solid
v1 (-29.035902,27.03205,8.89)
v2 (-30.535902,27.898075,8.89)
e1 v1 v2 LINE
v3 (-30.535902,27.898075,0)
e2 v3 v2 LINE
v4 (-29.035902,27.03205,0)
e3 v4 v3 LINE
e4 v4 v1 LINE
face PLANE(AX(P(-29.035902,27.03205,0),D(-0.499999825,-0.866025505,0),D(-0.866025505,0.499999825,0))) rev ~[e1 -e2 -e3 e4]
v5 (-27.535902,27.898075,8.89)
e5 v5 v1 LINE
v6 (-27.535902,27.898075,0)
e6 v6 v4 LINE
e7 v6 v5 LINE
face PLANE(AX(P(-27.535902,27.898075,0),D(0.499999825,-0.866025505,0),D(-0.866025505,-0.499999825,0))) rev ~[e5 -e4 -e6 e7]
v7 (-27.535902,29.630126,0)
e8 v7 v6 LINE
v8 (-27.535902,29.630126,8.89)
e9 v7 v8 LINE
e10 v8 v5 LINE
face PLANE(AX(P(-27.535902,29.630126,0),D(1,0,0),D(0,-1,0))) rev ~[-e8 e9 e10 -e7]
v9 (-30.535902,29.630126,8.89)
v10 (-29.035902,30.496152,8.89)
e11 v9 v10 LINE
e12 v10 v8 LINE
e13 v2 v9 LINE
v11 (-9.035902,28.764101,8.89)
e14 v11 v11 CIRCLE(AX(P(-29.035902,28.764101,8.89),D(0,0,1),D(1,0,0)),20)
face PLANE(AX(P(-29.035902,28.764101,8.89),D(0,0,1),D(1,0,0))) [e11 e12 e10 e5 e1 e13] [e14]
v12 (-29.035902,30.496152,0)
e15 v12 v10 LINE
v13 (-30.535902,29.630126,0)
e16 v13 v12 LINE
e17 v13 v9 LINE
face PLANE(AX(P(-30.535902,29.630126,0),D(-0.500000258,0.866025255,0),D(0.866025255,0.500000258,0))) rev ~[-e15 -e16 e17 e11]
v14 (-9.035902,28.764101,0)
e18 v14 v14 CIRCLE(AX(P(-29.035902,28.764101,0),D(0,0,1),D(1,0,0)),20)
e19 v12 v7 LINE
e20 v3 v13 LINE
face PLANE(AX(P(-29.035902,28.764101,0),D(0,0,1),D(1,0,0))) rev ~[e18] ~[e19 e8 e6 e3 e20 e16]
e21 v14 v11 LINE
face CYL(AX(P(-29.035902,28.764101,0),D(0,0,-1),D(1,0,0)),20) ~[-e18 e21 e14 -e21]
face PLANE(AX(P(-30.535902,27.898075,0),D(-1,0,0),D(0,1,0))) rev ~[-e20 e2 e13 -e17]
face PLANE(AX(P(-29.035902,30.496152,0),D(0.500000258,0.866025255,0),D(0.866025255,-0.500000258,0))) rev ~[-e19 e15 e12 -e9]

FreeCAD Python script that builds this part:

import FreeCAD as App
import Part
import Sketcher

V = App.Vector
Q = App.Units.Quantity


def add_polygon(sketch, points):
    """Adds a closed chain of lines whose ends are joined by coincident constraints."""
    first, n = sketch.GeometryCount, len(points)
    for a, b in zip(points, points[1:] + points[:1]):
        sketch.addGeometry(Part.LineSegment(App.Vector(*a, 0), App.Vector(*b, 0)), False)
    for i in range(n):
        sketch.addConstraint(Sketcher.Constraint("Coincident", first + i, 2, first + (i + 1) % n, 1))

doc = App.newDocument("Part")
body = doc.addObject("PartDesign::Body", "Body")

# Sketch on XY plane
sketch1 = body.newObject("Sketcher::SketchObject", "Sketch")
sketch1.AttachmentSupport = (doc.getObject("XY_Plane"), [""])
sketch1.MapMode = "FlatFace"
sketch1.addGeometry(Part.Circle(V(-29, 28.8, 0), V(0, 0, 1), 20), False)  # 0
add_polygon(sketch1, [(-30.5, 29.6), (-29, 30.5), (-27.5, 29.6), (-27.5, 27.9), (-29, 27), (-30.5, 27.9)])  # lines 1-6
sketch1.addConstraint([
    Sketcher.Constraint("Vertical", 3),
    Sketcher.Constraint("Vertical", 6),
    Sketcher.Constraint("Parallel", 1, 4),
    Sketcher.Constraint("Parallel", 2, 5),
    Sketcher.Constraint("Horizontal", 3, 2, 5, 2),
    Sketcher.Constraint("Horizontal", 2, 2, 6, 2),
    Sketcher.Constraint("Vertical", 0, 3, 1, 2),
    Sketcher.Constraint("Vertical", 1, 2, 4, 2),
    Sketcher.Constraint("Diameter", 0, 40.0),
    Sketcher.Constraint("Angle", 1, Q("30.000017 deg")),
    Sketcher.Constraint("DistanceX", 5, 2, 3, 2, 3.0),
    Sketcher.Constraint("DistanceY", 3, 2, 3, 1, 1.732051),
    Sketcher.Constraint("DistanceX", 0, 3, -1, 1, 29.035902),
    Sketcher.Constraint("DistanceY", -1, 1, 0, 3, 28.764101),
    Sketcher.Constraint("DistanceY", -1, 1, 1, 2, 30.496152),
])
pad1 = body.newObject("PartDesign::Pad", "Pad")
pad1.Profile = sketch1
pad1.Length = 8.89

# Sketch on XY plane
sketch2 = body.newObject("Sketcher::SketchObject", "Sketch001")
sketch2.AttachmentSupport = (doc.getObject("XY_Plane"), [""])
sketch2.MapMode = "FlatFace"
add_polygon(sketch2, [(-27.5, 27.9), (-27.5, 29.6), (-29, 30.5), (-30.5, 29.6), (-30.5, 27.9), (-29, 27)])  # lines 0-5
sketch2.addConstraint([
    Sketcher.Constraint("Vertical", 0),
    Sketcher.Constraint("Vertical", 3),
    Sketcher.Constraint("Parallel", 1, 4),
    Sketcher.Constraint("Parallel", 2, 5),
    Sketcher.Constraint("Horizontal", 0, 2, 2, 2),
    Sketcher.Constraint("Horizontal", 3, 2, 5, 2),
    Sketcher.Constraint("Vertical", 1, 2, 4, 2),
    Sketcher.Constraint("Angle", 1, Q("149.999983 deg")),
    Sketcher.Constraint("DistanceX", 2, 2, 0, 2, 3.0),
    Sketcher.Constraint("DistanceY", 0, 1, 0, 2, 1.732051),
    Sketcher.Constraint("DistanceX", 0, 2, -1, 1, 27.535902),
    Sketcher.Constraint("DistanceY", -1, 1, 1, 2, 30.496152),
])
pocket1 = body.newObject("PartDesign::Pocket", "Pocket")
pocket1.Profile = sketch2
pocket1.Length = 8.89
pocket1.Reversed = True

doc.recompute()
